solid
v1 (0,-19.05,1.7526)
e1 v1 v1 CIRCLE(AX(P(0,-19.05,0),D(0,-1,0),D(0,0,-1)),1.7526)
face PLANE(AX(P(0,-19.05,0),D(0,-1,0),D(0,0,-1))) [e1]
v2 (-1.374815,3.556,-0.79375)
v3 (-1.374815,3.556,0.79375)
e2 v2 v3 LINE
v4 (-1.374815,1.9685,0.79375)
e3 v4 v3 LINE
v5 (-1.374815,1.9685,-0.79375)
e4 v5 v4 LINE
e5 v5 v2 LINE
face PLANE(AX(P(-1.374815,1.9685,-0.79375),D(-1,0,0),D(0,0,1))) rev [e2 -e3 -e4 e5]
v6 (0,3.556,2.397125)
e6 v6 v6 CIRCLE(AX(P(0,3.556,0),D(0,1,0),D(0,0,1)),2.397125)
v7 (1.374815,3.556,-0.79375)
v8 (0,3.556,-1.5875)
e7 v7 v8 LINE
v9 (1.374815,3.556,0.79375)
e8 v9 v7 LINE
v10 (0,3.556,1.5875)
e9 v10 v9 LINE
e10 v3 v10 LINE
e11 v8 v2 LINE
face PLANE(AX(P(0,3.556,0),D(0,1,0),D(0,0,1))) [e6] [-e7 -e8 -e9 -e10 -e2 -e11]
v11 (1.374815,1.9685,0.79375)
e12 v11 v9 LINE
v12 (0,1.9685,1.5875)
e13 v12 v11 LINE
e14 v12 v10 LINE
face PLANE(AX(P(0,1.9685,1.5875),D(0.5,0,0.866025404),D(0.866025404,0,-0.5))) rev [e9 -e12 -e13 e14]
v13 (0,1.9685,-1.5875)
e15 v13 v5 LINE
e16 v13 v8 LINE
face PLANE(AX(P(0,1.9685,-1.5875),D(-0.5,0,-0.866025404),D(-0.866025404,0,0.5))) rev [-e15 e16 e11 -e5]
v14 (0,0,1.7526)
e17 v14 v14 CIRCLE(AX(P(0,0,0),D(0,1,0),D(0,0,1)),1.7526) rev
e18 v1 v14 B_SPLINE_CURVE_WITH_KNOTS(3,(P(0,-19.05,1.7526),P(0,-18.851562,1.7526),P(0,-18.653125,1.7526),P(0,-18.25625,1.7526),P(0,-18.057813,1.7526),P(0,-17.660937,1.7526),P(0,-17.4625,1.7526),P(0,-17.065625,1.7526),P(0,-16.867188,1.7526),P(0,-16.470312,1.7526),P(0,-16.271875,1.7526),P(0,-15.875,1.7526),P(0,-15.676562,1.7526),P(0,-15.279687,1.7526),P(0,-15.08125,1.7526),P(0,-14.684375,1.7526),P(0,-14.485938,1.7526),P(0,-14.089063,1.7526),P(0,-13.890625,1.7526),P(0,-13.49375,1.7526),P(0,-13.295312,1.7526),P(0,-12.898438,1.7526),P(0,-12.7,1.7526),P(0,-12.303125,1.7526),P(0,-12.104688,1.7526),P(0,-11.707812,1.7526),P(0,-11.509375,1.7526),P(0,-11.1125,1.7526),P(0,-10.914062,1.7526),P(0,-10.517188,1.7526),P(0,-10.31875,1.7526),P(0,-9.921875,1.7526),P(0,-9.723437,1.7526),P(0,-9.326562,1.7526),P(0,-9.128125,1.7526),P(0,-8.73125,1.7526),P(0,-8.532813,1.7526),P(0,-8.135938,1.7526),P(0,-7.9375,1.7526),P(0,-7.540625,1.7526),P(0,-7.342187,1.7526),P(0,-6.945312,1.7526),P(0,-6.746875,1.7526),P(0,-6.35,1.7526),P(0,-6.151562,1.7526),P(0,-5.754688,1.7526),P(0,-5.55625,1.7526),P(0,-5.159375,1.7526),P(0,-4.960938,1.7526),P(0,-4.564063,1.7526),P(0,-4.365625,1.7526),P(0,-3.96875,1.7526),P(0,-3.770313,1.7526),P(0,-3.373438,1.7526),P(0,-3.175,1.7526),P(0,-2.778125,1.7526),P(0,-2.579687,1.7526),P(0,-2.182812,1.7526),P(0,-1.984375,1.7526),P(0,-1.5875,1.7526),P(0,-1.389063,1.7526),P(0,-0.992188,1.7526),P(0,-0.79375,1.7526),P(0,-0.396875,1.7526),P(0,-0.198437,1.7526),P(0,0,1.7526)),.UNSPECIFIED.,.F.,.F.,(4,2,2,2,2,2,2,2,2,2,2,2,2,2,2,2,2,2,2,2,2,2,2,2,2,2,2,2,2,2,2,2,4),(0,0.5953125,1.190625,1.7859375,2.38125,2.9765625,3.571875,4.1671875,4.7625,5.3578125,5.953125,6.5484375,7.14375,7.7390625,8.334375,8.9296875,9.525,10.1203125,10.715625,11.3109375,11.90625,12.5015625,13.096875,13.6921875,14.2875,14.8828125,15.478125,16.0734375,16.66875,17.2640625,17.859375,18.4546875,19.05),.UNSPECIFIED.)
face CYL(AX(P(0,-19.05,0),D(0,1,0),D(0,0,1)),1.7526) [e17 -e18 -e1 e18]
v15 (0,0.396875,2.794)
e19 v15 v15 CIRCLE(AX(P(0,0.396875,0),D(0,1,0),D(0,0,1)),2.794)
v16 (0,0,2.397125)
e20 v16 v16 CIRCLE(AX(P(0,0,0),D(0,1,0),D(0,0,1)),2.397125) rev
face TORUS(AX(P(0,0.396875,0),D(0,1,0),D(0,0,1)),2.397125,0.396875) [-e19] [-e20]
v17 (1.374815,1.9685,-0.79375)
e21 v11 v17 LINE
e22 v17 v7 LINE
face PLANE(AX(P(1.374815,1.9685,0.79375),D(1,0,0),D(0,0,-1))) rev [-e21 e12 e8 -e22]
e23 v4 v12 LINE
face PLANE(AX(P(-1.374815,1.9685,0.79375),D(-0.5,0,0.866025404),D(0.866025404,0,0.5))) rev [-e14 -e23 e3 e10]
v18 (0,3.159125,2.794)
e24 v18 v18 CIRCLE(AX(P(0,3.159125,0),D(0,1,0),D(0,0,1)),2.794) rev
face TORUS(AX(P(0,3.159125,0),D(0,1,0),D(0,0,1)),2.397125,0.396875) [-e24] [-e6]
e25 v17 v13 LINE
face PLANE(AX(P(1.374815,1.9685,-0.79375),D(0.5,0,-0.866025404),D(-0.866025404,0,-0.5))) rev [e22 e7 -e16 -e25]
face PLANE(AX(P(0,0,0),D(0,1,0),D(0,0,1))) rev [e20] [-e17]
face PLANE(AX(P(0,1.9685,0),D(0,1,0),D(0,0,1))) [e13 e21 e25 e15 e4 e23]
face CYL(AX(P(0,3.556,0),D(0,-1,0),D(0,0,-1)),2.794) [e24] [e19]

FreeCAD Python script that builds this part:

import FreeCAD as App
import Part
import Sketcher

V = App.Vector
Q = App.Units.Quantity


def edges_at(feature, points):
    """Names of the edges that pass closest to the given points."""
    edges = feature.Shape.Edges
    near = lambda p: min(range(len(edges)), key=lambda i: edges[i].distToShape(Part.Vertex(*p))[0])
    return sorted({f"Edge{near(p) + 1}" for p in points})

doc = App.newDocument("Part")
params = doc.addObject("Spreadsheet::Sheet", "Params")
for row, (alias, value) in enumerate([
    ("sketch1_diameter", "0.22 in"),
    ("pad1_length", "0.14 in"),
    ("sketch2_diameter", "0.138 in"),
    ("pad2_length", "0.75 in"),
    ("fillet_radius", "0.015625 in"),
    ("sketch3_height", "0.0625 in"),
    ("sketch3_length", "0.0625 in"),
    ("pocket1_length", "0.0625 in"),
], start=1):
    params.set(f"A{row}", alias)
    params.set(f"B{row}", "=" + value)
    params.setAlias(f"B{row}", alias)

body = doc.addObject("PartDesign::Body", "Body")

sketch1 = body.newObject("Sketcher::SketchObject", "Sketch")
sketch1.AttachmentSupport = (doc.getObject("XZ_Plane"), [""])
sketch1.MapMode = "FlatFace"
sketch1.addGeometry(Part.Circle(V(0, 0, 0), V(0, 0, 1), 2.8), False)
sketch1.addConstraint([
    Sketcher.Constraint("Coincident", 0, 3, -1, 1),
    Sketcher.Constraint("Diameter", 0, Q("0.22 in")),
])
sketch1.setExpression("Constraints[1]", "Params.sketch1_diameter")
pad1 = body.newObject("PartDesign::Pad", "Pad")
pad1.Profile = sketch1
pad1.setExpression("Length", "Params.pad1_length")
pad1.Reversed = True

sketch2 = body.newObject("Sketcher::SketchObject", "Sketch001")
sketch2.AttachmentSupport = (doc.getObject("XZ_Plane"), [""])
sketch2.MapMode = "FlatFace"
sketch2.addGeometry(Part.Circle(V(0, 0, 0), V(0, 0, 1), 1.8), False)
sketch2.addConstraint([
    Sketcher.Constraint("Coincident", 0, 3, -1, 1),
    Sketcher.Constraint("Diameter", 0, Q("0.138 in")),
])
sketch2.setExpression("Constraints[1]", "Params.sketch2_diameter")
pad2 = body.newObject("PartDesign::Pad", "Pad001")
pad2.Profile = sketch2
pad2.setExpression("Length", "Params.pad2_length")
doc.recompute()

fillet = body.newObject("PartDesign::Fillet", "Fillet")
fillet.Base = (pad2, edges_at(pad2, [(0, 0, -2.794), (0, 3.556, -2.794)]))
fillet.setExpression("Radius", "Params.fillet_radius")

sketch3 = body.newObject("Sketcher::SketchObject", "Sketch002")
sketch3.AttachmentSupport = (doc.getObject("XZ_Plane"), [""])
sketch3.MapMode = "FlatFace"
sketch3.AttachmentOffset = App.Placement(V(0, 0, -0.14 * 25.4), App.Rotation())
sketch3.addGeometry([
    Part.LineSegment(V(-1.4, -0.8, 0), V(-1.4, 0.8, 0)),
    Part.LineSegment(V(-1.4, 0.8, 0), V(0, 1.6, 0)),
    Part.LineSegment(V(0, 1.6, 0), V(1.4, 0.8, 0)),
    Part.LineSegment(V(1.4, 0.8, 0), V(1.4, -0.8, 0)),
    Part.LineSegment(V(1.4, -0.8, 0), V(0, -1.6, 0)),
    Part.LineSegment(V(0, -1.6, 0), V(-1.4, -0.8, 0)),
], False)
sketch3.addConstraint([
    Sketcher.Constraint("Coincident", 0, 2, 1, 1),
    Sketcher.Constraint("Coincident", 1, 2, 2, 1),
    Sketcher.Constraint("Coincident", 2, 2, 3, 1),
    Sketcher.Constraint("Coincident", 3, 2, 4, 1),
    Sketcher.Constraint("Coincident", 4, 2, 5, 1),
    Sketcher.Constraint("Coincident", 5, 2, 0, 1),
    Sketcher.Constraint("Vertical", 0),
    Sketcher.Constraint("Vertical", 3),
    Sketcher.Constraint("Symmetric", 0, 2, 3, 2, -1, 1),
    Sketcher.Constraint("Symmetric", 1, 2, 4, 2, -1, 1),
    Sketcher.Constraint("PointOnObject", 1, 2, -2),
    Sketcher.Constraint("Parallel", 2, 5),
    Sketcher.Constraint("Horizontal", 0, 2, 2, 2),
    Sketcher.Constraint("Angle", 1, Q("30 deg")),
    Sketcher.Constraint("DistanceY", 0, 1, 0, 2, Q("0.0625 in")),
    Sketcher.Constraint("Distance", 1, Q("0.0625 in")),
])
sketch3.setExpression("Constraints[14]", "Params.sketch3_height")
sketch3.setExpression("Constraints[15]", "Params.sketch3_length")
pocket1 = body.newObject("PartDesign::Pocket", "Pocket")
pocket1.Profile = sketch3
pocket1.setExpression("Length", "Params.pocket1_length")
pocket1.Reversed = True

doc.recompute()
